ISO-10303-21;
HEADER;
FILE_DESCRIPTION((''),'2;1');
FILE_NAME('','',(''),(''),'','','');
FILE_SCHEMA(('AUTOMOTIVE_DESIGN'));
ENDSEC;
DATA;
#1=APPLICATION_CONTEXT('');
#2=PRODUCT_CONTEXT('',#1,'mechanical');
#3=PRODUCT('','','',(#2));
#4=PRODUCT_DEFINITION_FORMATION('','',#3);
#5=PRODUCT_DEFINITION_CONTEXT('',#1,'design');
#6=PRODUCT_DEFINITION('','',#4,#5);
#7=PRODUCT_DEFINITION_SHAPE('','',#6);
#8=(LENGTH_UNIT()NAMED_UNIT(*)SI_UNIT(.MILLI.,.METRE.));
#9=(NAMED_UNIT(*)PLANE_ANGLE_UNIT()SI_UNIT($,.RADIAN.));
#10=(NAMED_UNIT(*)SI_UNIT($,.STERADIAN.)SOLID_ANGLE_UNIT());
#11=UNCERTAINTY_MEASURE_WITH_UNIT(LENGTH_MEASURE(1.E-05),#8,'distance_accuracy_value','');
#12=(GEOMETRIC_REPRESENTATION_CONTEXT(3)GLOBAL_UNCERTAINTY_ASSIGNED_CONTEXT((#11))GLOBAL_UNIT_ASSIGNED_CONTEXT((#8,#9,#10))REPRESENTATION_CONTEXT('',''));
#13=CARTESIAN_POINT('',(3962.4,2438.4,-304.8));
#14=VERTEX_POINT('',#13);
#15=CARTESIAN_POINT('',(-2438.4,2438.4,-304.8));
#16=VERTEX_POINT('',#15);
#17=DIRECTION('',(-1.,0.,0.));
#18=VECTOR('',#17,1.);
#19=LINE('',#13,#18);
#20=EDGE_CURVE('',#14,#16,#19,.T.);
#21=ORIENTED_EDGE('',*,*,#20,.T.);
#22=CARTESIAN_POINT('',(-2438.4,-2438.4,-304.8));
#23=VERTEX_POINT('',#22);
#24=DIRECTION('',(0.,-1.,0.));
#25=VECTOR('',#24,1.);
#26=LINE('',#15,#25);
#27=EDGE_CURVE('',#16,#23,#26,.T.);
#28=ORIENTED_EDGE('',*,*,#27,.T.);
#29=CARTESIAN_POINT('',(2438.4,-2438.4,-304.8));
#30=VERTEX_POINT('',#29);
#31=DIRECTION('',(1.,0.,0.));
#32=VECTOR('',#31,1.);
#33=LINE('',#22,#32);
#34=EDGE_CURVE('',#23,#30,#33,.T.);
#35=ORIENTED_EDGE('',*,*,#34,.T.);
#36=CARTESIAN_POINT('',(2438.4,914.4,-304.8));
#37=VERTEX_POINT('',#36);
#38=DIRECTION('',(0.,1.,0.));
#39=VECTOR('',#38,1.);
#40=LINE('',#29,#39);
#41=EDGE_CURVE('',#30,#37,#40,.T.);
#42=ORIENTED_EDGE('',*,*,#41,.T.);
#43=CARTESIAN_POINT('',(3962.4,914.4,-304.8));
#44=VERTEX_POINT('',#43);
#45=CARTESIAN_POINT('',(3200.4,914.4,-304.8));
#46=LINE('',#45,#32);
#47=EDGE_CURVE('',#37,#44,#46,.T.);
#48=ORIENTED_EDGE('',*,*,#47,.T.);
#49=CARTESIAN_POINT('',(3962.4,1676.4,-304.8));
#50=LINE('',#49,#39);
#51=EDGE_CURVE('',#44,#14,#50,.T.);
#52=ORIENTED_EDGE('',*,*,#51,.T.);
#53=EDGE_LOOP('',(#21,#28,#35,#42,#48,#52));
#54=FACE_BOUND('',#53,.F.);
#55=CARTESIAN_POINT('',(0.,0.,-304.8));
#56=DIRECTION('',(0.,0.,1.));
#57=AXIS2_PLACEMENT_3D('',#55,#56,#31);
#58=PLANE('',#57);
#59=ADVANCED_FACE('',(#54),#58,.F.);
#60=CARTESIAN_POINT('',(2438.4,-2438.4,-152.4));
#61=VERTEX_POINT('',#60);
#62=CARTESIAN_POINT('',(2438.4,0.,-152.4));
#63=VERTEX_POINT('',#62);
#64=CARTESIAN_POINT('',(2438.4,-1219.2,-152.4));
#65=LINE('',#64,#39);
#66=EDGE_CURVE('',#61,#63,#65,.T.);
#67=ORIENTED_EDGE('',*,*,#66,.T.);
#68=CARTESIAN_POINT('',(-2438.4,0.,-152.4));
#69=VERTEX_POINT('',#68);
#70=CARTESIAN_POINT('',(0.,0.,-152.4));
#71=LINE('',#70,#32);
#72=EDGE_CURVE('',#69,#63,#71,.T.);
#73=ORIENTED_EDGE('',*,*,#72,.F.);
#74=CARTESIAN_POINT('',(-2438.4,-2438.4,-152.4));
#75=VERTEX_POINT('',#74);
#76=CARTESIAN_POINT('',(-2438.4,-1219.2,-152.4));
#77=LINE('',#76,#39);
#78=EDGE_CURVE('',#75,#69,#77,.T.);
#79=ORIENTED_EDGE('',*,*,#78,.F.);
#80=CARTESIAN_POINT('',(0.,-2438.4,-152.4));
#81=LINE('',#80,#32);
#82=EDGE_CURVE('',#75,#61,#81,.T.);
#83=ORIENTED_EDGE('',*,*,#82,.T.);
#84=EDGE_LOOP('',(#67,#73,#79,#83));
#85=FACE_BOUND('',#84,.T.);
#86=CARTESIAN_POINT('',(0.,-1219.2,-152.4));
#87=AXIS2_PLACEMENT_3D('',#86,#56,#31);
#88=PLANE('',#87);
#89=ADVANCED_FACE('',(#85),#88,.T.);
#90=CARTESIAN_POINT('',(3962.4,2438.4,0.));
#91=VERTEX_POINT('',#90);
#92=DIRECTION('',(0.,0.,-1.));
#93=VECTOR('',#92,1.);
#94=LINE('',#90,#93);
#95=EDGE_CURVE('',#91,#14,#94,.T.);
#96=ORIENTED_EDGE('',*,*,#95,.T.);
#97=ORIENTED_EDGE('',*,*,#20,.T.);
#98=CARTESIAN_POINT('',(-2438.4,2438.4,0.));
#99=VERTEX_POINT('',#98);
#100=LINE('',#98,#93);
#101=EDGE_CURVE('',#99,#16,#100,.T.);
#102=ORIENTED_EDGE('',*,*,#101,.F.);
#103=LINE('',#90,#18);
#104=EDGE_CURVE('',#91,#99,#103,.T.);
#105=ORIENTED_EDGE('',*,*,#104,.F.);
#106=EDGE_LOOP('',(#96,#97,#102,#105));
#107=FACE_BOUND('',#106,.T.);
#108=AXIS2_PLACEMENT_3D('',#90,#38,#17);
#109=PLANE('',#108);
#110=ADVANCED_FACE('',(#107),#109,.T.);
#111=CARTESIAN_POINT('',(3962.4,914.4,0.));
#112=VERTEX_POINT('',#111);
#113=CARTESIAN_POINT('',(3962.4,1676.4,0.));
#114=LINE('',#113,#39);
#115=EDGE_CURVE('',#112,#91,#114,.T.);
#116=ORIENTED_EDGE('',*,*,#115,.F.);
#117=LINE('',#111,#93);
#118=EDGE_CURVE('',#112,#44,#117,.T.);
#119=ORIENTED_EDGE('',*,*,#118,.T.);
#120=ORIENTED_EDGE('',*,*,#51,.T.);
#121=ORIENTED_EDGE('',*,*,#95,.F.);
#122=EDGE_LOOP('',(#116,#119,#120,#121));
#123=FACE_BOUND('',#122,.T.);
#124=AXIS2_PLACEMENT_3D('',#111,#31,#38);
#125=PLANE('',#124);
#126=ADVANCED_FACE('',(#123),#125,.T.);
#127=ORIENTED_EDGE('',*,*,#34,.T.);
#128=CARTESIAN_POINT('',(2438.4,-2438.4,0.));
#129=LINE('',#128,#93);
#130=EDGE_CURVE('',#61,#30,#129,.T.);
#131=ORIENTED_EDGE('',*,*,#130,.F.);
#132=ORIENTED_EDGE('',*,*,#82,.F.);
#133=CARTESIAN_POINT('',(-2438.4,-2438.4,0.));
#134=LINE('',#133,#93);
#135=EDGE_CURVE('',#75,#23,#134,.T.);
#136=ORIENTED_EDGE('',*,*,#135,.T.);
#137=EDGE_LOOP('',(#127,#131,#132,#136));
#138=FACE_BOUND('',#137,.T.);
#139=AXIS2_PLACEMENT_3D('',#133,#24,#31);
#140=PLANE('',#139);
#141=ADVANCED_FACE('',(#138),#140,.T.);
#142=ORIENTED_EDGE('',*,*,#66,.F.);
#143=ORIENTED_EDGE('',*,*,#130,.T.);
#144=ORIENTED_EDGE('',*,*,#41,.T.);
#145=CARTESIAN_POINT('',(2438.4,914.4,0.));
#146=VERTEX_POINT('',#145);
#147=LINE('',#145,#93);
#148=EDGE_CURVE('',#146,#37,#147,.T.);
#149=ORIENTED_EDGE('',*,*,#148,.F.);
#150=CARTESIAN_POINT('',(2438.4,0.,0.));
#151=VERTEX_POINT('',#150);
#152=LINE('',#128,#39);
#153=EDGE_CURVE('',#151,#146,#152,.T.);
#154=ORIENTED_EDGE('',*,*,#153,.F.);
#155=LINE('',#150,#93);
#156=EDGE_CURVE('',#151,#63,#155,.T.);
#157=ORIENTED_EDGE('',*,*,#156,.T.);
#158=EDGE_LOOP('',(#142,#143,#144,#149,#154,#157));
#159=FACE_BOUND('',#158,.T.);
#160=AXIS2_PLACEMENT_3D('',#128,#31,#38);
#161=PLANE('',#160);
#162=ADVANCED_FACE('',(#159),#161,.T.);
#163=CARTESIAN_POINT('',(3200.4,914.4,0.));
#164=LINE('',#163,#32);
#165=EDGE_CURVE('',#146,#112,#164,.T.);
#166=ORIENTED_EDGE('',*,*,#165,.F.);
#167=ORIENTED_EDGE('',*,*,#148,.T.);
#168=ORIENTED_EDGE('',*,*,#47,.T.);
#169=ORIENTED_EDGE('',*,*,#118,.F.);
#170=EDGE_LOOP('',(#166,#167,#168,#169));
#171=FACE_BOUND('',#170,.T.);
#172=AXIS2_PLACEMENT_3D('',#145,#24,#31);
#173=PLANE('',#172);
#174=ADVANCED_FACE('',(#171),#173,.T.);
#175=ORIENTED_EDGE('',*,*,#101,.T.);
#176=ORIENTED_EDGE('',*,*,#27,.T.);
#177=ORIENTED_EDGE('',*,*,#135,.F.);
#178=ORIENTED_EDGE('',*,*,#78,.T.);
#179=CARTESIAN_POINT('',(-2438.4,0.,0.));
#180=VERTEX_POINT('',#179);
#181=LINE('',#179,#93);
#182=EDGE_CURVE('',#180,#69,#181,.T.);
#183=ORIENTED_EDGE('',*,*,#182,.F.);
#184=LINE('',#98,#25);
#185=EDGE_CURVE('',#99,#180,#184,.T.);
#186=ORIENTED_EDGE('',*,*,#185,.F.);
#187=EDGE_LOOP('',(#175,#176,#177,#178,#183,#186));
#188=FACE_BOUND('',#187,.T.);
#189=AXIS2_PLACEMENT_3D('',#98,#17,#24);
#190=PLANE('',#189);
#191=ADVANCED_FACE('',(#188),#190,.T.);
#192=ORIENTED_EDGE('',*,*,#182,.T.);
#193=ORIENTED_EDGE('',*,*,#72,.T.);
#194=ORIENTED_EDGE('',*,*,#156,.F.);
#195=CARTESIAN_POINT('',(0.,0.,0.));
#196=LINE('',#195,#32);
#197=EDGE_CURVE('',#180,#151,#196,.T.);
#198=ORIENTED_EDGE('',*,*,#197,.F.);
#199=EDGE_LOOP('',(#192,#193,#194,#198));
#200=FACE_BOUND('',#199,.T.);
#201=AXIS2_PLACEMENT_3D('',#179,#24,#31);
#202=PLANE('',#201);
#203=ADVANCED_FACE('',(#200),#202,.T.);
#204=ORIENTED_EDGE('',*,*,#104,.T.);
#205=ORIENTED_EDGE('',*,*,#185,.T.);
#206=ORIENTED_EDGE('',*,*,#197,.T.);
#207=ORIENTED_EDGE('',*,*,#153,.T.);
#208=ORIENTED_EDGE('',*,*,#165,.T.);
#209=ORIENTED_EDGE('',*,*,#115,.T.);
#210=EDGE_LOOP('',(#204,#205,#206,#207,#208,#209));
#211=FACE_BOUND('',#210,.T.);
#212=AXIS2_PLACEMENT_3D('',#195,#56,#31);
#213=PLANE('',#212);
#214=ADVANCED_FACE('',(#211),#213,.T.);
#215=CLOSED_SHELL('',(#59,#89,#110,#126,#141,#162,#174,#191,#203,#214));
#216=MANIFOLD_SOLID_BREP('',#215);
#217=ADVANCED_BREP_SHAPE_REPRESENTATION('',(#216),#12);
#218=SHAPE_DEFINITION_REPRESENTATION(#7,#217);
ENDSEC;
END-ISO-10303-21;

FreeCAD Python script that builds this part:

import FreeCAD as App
import Part
import Sketcher
Q = App.Units.Quantity

doc = App.newDocument("Part")
body = doc.addObject("PartDesign::Body", "Body")

# Sketch on XY plane
sketch1 = body.newObject("Sketcher::SketchObject", "Sketch")
sketch1.AttachmentSupport = (doc.getObject("XY_Plane"), [""])
sketch1.MapMode = "FlatFace"
sketch1.addGeometry(Part.LineSegment(App.Vector(-2438, 2438, 0), App.Vector(-2438, -2438, 0)), False)
sketch1.addGeometry(Part.LineSegment(App.Vector(-2438, -2438, 0), App.Vector(2438, -2438, 0)), False)
sketch1.addGeometry(Part.LineSegment(App.Vector(2438, -2438, 0), App.Vector(2438, 914, 0)), False)
sketch1.addGeometry(Part.LineSegment(App.Vector(2438, 914, 0), App.Vector(3962, 914, 0)), False)
sketch1.addGeometry(Part.LineSegment(App.Vector(3962, 914, 0), App.Vector(3962, 2438, 0)), False)
sketch1.addGeometry(Part.LineSegment(App.Vector(3962, 2438, 0), App.Vector(-2438, 2438, 0)), False)
sketch1.addConstraint(Sketcher.Constraint("Coincident", 0, 2, 1, 1))
sketch1.addConstraint(Sketcher.Constraint("Coincident", 1, 2, 2, 1))
sketch1.addConstraint(Sketcher.Constraint("Coincident", 2, 2, 3, 1))
sketch1.addConstraint(Sketcher.Constraint("Coincident", 3, 2, 4, 1))
sketch1.addConstraint(Sketcher.Constraint("Coincident", 4, 2, 5, 1))
sketch1.addConstraint(Sketcher.Constraint("Coincident", 5, 2, 0, 1))
sketch1.addConstraint(Sketcher.Constraint("Vertical", 0))
sketch1.addConstraint(Sketcher.Constraint("Horizontal", 1))
sketch1.addConstraint(Sketcher.Constraint("Vertical", 2))
sketch1.addConstraint(Sketcher.Constraint("Horizontal", 3))
sketch1.addConstraint(Sketcher.Constraint("Vertical", 4))
sketch1.addConstraint(Sketcher.Constraint("Horizontal", 5))
sketch1.addConstraint(Sketcher.Constraint("Symmetric", 1, 2, 5, 2, -1, 1))
sketch1.addConstraint(Sketcher.Constraint("Equal", 1, 0))
sketch1.addConstraint(Sketcher.Constraint("Equal", 3, 4))
sketch1.addConstraint(Sketcher.Constraint("DistanceX", 1, 1, 1, 2, Q("192 in")))
sketch1.addConstraint(Sketcher.Constraint("DistanceX", 3, 1, 3, 2, Q("60 in")))
pad1 = body.newObject("PartDesign::Pad", "Pad")
pad1.Profile = sketch1
pad1.Length = Q("12 in")
pad1.Reversed = True

# Sketch on XY plane
sketch2 = body.newObject("Sketcher::SketchObject", "Sketch001")
sketch2.AttachmentSupport = (doc.getObject("XY_Plane"), [""])
sketch2.MapMode = "FlatFace"
sketch2.addGeometry(Part.LineSegment(App.Vector(-2438, 0, 0), App.Vector(-2438, -2438, 0)), False)
sketch2.addGeometry(Part.LineSegment(App.Vector(-2438, -2438, 0), App.Vector(2438, -2438, 0)), False)
sketch2.addGeometry(Part.LineSegment(App.Vector(2438, -2438, 0), App.Vector(2438, 0, 0)), False)
sketch2.addGeometry(Part.LineSegment(App.Vector(2438, 0, 0), App.Vector(-2438, 0, 0)), False)
sketch2.addConstraint(Sketcher.Constraint("Coincident", 0, 2, 1, 1))
sketch2.addConstraint(Sketcher.Constraint("Coincident", 1, 2, 2, 1))
sketch2.addConstraint(Sketcher.Constraint("Coincident", 2, 2, 3, 1))
sketch2.addConstraint(Sketcher.Constraint("Coincident", 3, 2, 0, 1))
sketch2.addConstraint(Sketcher.Constraint("Vertical", 0))
sketch2.addConstraint(Sketcher.Constraint("Horizontal", 1))
sketch2.addConstraint(Sketcher.Constraint("Vertical", 2))
sketch2.addConstraint(Sketcher.Constraint("Horizontal", 3))
sketch2.addConstraint(Sketcher.Constraint("Symmetric", 2, 2, 3, 2, -1, 1))
sketch2.addConstraint(Sketcher.Constraint("DistanceX", 1, 1, 1, 2, Q("192 in")))
sketch2.addConstraint(Sketcher.Constraint("DistanceY", 0, 2, 0, 1, Q("96 in")))
pocket1 = body.newObject("PartDesign::Pocket", "Pocket")
pocket1.Profile = sketch2
pocket1.Length = Q("6 in")

doc.recompute()
